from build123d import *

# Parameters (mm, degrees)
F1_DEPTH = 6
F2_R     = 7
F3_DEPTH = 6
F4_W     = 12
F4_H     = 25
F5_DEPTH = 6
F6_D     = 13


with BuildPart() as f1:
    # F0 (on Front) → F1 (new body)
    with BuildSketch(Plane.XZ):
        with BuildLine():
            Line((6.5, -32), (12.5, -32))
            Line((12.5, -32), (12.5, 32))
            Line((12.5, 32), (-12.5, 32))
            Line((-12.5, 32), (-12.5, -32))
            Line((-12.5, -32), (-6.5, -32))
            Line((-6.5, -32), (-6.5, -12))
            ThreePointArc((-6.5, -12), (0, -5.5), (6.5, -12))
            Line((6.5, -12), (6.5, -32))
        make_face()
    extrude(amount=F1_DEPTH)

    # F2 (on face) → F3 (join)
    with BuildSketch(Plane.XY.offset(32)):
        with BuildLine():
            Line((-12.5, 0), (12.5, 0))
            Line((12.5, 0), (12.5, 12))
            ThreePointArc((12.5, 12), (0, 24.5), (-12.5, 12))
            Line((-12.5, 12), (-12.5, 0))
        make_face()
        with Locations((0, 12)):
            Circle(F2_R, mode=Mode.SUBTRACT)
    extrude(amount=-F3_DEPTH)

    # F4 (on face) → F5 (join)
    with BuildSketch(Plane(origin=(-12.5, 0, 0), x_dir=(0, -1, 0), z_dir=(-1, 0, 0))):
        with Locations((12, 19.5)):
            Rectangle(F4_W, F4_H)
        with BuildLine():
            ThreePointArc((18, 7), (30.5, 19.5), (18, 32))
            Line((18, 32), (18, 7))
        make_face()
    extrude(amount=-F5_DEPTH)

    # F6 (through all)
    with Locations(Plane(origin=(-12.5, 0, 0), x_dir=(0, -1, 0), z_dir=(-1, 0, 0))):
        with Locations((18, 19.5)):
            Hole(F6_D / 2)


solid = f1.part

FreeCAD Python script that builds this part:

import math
import FreeCAD as App
import Part
import Sketcher

doc = App.newDocument("Part")
body = doc.addObject("PartDesign::Body", "Body")

# Sketch on XZ plane
sketch1 = body.newObject("Sketcher::SketchObject", "Sketch")
sketch1.AttachmentSupport = (doc.getObject("XZ_Plane"), [""])
sketch1.MapMode = "FlatFace"
sketch1.addGeometry(Part.LineSegment(App.Vector(6, -32, 0), App.Vector(12, -32, 0)), False)
sketch1.addGeometry(Part.LineSegment(App.Vector(12, -32, 0), App.Vector(12, 32, 0)), False)
sketch1.addGeometry(Part.LineSegment(App.Vector(12, 32, 0), App.Vector(-12, 32, 0)), False)
sketch1.addGeometry(Part.LineSegment(App.Vector(-12, 32, 0), App.Vector(-12, -32, 0)), False)
sketch1.addGeometry(Part.LineSegment(App.Vector(-12, -32, 0), App.Vector(-6, -32, 0)), False)
sketch1.addGeometry(Part.LineSegment(App.Vector(-6, -32, 0), App.Vector(-6, -12, 0)), False)
sketch1.addGeometry(Part.ArcOfCircle(Part.Circle(App.Vector(0, -12, 0), App.Vector(0, 0, 1), 6), math.radians(0), math.radians(180)), False)
sketch1.addGeometry(Part.LineSegment(App.Vector(6, -12, 0), App.Vector(6, -32, 0)), False)
sketch1.addConstraint(Sketcher.Constraint("Coincident", 0, 2, 1, 1))
sketch1.addConstraint(Sketcher.Constraint("Coincident", 1, 2, 2, 1))
sketch1.addConstraint(Sketcher.Constraint("Coincident", 2, 2, 3, 1))
sketch1.addConstraint(Sketcher.Constraint("Coincident", 3, 2, 4, 1))
sketch1.addConstraint(Sketcher.Constraint("Coincident", 4, 2, 5, 1))
sketch1.addConstraint(Sketcher.Constraint("Tangent", 5, 2, 6, 2))
sketch1.addConstraint(Sketcher.Constraint("Tangent", 6, 1, 7, 1))
sketch1.addConstraint(Sketcher.Constraint("Coincident", 7, 2, 0, 1))
sketch1.addConstraint(Sketcher.Constraint("Horizontal", 0))
sketch1.addConstraint(Sketcher.Constraint("Vertical", 1))
sketch1.addConstraint(Sketcher.Constraint("Horizontal", 2))
sketch1.addConstraint(Sketcher.Constraint("Vertical", 3))
sketch1.addConstraint(Sketcher.Constraint("Horizontal", 4))
sketch1.addConstraint(Sketcher.Constraint("Vertical", 5))
sketch1.addConstraint(Sketcher.Constraint("Vertical", 7))
sketch1.addConstraint(Sketcher.Constraint("Symmetric", 0, 2, 2, 2, -1, 1))
sketch1.addConstraint(Sketcher.Constraint("Symmetric", 4, 2, 7, 2, -2))
sketch1.addConstraint(Sketcher.Constraint("Radius", 6, 6.5))
sketch1.addConstraint(Sketcher.Constraint("DistanceX", 0, 1, 0, 2, 6.0))
sketch1.addConstraint(Sketcher.Constraint("DistanceY", 1, 1, 1, 2, 64.0))
sketch1.addConstraint(Sketcher.Constraint("DistanceY", 5, 1, 5, 2, 20.0))
pad1 = body.newObject("PartDesign::Pad", "Pad")
pad1.Profile = sketch1
pad1.Length = 6

# Sketch on XY plane
sketch2 = body.newObject("Sketcher::SketchObject", "Sketch001")
sketch2.AttachmentSupport = (doc.getObject("XY_Plane"), [""])
sketch2.MapMode = "FlatFace"
sketch2.AttachmentOffset = App.Placement(App.Vector(0, 0, 32), App.Rotation())
sketch2.addGeometry(Part.LineSegment(App.Vector(-12, 0, 0), App.Vector(12, 0, 0)), False)
sketch2.addGeometry(Part.LineSegment(App.Vector(12, 0, 0), App.Vector(12, 12, 0)), False)
sketch2.addGeometry(Part.ArcOfCircle(Part.Circle(App.Vector(0, 12, 0), App.Vector(0, 0, 1), 12), math.radians(0), math.radians(180)), False)
sketch2.addGeometry(Part.LineSegment(App.Vector(-12, 12, 0), App.Vector(-12, 0, 0)), False)
sketch2.addGeometry(Part.Circle(App.Vector(0, 12, 0), App.Vector(0, 0, 1), 7), False)
sketch2.addConstraint(Sketcher.Constraint("Coincident", 0, 2, 1, 1))
sketch2.addConstraint(Sketcher.Constraint("Tangent", 1, 2, 2, 1))
sketch2.addConstraint(Sketcher.Constraint("Tangent", 2, 2, 3, 1))
sketch2.addConstraint(Sketcher.Constraint("Coincident", 3, 2, 0, 1))
sketch2.addConstraint(Sketcher.Constraint("Horizontal", 0))
sketch2.addConstraint(Sketcher.Constraint("Vertical", 1))
sketch2.addConstraint(Sketcher.Constraint("Vertical", 3))
sketch2.addConstraint(Sketcher.Constraint("Coincident", 4, 3, 2, 3))
sketch2.addConstraint(Sketcher.Constraint("Symmetric", 0, 2, 3, 2, -1, 1))
sketch2.addConstraint(Sketcher.Constraint("Diameter", 4, 14.0))
sketch2.addConstraint(Sketcher.Constraint("Radius", 2, 12.5))
sketch2.addConstraint(Sketcher.Constraint("DistanceY", 1, 1, 1, 2, 12.0))
pad2 = body.newObject("PartDesign::Pad", "Pad001")
pad2.Profile = sketch2
pad2.Length = 6
pad2.Reversed = True

# Sketch on YZ plane
sketch3 = body.newObject("Sketcher::SketchObject", "Sketch002")
sketch3.AttachmentSupport = (doc.getObject("YZ_Plane"), [""])
sketch3.MapMode = "FlatFace"
sketch3.AttachmentOffset = App.Placement(App.Vector(0, 0, -12.5), App.Rotation())
sketch3.addGeometry(Part.LineSegment(App.Vector(-6, 32, 0), App.Vector(-6, 7, 0)), False)
sketch3.addGeometry(Part.LineSegment(App.Vector(-6, 7, 0), App.Vector(-18, 7, 0)), False)
sketch3.addGeometry(Part.ArcOfCircle(Part.Circle(App.Vector(-18, 20, 0), App.Vector(0, 0, 1), 12), math.radians(90), math.radians(270)), False)
sketch3.addGeometry(Part.LineSegment(App.Vector(-18, 32, 0), App.Vector(-6, 32, 0)), False)
sketch3.addConstraint(Sketcher.Constraint("Coincident", 0, 2, 1, 1))
sketch3.addConstraint(Sketcher.Constraint("Tangent", 1, 2, 2, 2))
sketch3.addConstraint(Sketcher.Constraint("Tangent", 2, 1, 3, 1))
sketch3.addConstraint(Sketcher.Constraint("Coincident", 3, 2, 0, 1))
sketch3.addConstraint(Sketcher.Constraint("Vertical", 0))
sketch3.addConstraint(Sketcher.Constraint("Horizontal", 1))
sketch3.addConstraint(Sketcher.Constraint("Horizontal", 3))
sketch3.addConstraint(Sketcher.Constraint("Radius", 2, 12.5))
sketch3.addConstraint(Sketcher.Constraint("DistanceX", 1, 2, 1, 1, 12.0))
sketch3.addConstraint(Sketcher.Constraint("DistanceX", 2, 3, -1, 1, 18.0))
sketch3.addConstraint(Sketcher.Constraint("DistanceY", -1, 1, 0, 2, 7.0))
pad3 = body.newObject("PartDesign::Pad", "Pad002")
pad3.Profile = sketch3
pad3.Length = 6

# Sketch on YZ plane
sketch4 = body.newObject("Sketcher::SketchObject", "Sketch003")
sketch4.AttachmentSupport = (doc.getObject("YZ_Plane"), [""])
sketch4.MapMode = "FlatFace"
sketch4.AttachmentOffset = App.Placement(App.Vector(0, 0, -12.5), App.Rotation())
sketch4.addGeometry(Part.Circle(App.Vector(-18, 20, 0), App.Vector(0, 0, 1), 6), False)
sketch4.addConstraint(Sketcher.Constraint("Diameter", 0, 13.0))
sketch4.addConstraint(Sketcher.Constraint("DistanceX", 0, 3, -1, 1, 18.0))
sketch4.addConstraint(Sketcher.Constraint("DistanceY", -1, 1, 0, 3, 19.5))
doc.recompute()
hole = body.newObject("PartDesign::Hole", "Hole")
hole.Profile = sketch4
hole.ThreadType = "None"
hole.Diameter = 13
hole.DepthType = "ThroughAll"
hole.Reversed = True

doc.recompute()
